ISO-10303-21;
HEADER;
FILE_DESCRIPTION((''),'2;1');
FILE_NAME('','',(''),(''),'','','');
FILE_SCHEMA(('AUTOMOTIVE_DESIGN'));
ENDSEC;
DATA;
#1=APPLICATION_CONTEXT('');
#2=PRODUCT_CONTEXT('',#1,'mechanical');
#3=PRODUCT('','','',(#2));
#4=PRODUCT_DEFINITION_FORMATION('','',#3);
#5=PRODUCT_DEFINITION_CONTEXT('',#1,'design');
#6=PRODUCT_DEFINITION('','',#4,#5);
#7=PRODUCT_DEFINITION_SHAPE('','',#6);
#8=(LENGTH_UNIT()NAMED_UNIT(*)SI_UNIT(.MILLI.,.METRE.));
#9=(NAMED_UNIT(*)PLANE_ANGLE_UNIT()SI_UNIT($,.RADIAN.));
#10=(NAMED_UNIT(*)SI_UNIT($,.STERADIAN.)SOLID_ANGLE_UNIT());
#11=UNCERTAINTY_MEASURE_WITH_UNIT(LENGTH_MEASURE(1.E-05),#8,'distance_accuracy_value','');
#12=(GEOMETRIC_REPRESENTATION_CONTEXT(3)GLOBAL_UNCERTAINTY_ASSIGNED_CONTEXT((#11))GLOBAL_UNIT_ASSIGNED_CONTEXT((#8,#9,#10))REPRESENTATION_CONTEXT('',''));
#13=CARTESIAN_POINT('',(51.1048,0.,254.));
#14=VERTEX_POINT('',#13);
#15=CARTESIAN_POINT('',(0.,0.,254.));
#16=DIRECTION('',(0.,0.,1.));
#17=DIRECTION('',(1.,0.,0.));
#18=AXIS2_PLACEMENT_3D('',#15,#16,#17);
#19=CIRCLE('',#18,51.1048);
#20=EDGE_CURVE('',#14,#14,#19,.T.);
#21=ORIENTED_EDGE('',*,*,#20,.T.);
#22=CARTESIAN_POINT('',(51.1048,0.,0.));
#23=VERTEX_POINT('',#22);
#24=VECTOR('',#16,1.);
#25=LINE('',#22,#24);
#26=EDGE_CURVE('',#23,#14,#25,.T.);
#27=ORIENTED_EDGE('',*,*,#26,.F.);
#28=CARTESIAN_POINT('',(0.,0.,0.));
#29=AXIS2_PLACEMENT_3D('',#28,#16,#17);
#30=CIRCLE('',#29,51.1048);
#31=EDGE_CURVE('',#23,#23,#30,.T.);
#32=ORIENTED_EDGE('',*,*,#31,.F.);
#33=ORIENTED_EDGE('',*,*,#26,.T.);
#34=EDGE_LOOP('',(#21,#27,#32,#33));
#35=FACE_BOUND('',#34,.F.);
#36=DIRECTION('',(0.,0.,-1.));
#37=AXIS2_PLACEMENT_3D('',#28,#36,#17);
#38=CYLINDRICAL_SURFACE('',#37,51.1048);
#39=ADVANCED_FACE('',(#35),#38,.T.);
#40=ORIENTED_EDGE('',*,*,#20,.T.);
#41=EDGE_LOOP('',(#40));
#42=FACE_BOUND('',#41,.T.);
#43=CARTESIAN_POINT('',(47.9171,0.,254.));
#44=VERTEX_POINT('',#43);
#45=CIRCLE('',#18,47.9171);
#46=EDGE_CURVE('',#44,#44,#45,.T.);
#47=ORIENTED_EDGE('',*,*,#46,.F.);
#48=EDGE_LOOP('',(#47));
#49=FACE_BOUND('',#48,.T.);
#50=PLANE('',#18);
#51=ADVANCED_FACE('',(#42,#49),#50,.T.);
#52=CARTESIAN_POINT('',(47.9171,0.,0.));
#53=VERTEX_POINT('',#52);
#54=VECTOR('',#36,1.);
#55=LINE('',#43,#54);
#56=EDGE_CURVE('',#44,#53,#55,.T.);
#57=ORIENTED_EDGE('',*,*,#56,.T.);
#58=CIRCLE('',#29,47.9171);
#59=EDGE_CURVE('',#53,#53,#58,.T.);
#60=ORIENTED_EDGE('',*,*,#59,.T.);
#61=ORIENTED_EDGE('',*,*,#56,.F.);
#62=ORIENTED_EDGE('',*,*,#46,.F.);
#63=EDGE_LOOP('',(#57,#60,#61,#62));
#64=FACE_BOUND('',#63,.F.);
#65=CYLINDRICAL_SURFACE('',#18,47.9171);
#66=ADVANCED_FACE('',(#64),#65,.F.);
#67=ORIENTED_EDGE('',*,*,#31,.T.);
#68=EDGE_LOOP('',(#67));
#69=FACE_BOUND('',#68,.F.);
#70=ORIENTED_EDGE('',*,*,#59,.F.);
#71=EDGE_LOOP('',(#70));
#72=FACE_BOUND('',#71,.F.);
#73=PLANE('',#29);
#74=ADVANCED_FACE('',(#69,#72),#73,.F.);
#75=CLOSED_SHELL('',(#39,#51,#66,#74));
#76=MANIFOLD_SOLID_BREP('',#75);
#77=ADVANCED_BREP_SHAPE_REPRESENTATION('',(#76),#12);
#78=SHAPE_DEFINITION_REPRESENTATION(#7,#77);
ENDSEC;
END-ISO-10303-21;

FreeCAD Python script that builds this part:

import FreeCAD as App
import Part
import Sketcher
from FreeCAD import Vector
Q = App.Units.Quantity

doc = App.newDocument("Part")
params = doc.addObject("Spreadsheet::Sheet", "Params")
for row, (alias, value) in enumerate([
    ("sketch1_diameter", "4.024 in"),
    ("pad1_length", "10 in"),
    ("sketch2_diameter", "3.773 in"),
], start=1):
    params.set(f"A{row}", alias)
    params.set(f"B{row}", "=" + value)
    params.setAlias(f"B{row}", alias)

body = doc.addObject("PartDesign::Body", "Body")

# Sketch on XY plane
sketch1 = body.newObject("Sketcher::SketchObject", "Sketch")
sketch1.AttachmentSupport = (doc.getObject("XY_Plane"), [""])
sketch1.MapMode = "FlatFace"
sketch1.addGeometry(Part.Circle(Vector(0, 0, 0), Vector(0, 0, 1), 51.1048), False)
sketch1.addConstraint(Sketcher.Constraint("Coincident", 0, 3, -1, 1))
sketch1.addConstraint(Sketcher.Constraint("Diameter", 0, Q("4.024 in")))
sketch1.setExpression("Constraints[1]", "Params.sketch1_diameter")
pad1 = body.newObject("PartDesign::Pad", "Pad")
pad1.Profile = sketch1
pad1.setExpression("Length", "Params.pad1_length")

# Sketch on XY plane
sketch2 = body.newObject("Sketcher::SketchObject", "Sketch001")
sketch2.AttachmentSupport = (doc.getObject("XY_Plane"), [""])
sketch2.MapMode = "FlatFace"
sketch2.AttachmentOffset = App.Placement(Vector(0, 0, 10 * 25.4), App.Rotation())
sketch2.addGeometry(Part.Circle(Vector(0, 0, 0), Vector(0, 0, 1), 47.9171), False)
sketch2.addConstraint(Sketcher.Constraint("Coincident", 0, 3, -1, 1))
sketch2.addConstraint(Sketcher.Constraint("Diameter", 0, Q("3.773 in")))
sketch2.setExpression("Constraints[1]", "Params.sketch2_diameter")
pocket1 = body.newObject("PartDesign::Pocket", "Pocket")
pocket1.Profile = sketch2
pocket1.Type = "ThroughAll"

doc.recompute()
